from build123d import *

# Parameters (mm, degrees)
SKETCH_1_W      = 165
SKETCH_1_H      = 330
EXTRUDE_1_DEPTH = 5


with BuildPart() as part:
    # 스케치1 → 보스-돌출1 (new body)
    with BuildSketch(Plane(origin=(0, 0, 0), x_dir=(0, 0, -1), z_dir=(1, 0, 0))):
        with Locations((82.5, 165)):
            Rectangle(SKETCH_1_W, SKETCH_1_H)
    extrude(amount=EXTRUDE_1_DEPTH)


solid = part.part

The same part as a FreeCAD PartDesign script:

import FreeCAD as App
import Part
import Sketcher

V = App.Vector
Q = App.Units.Quantity

doc = App.newDocument("Part")
params = doc.addObject("Spreadsheet::Sheet", "Params")
for row, (alias, value) in enumerate([
    ("sketch1_width", "330 mm"),
    ("sketch1_height", "165 mm"),
    ("pad1_length", "5 mm"),
], start=1):
    params.set(f"A{row}", alias)
    params.set(f"B{row}", "=" + value)
    params.setAlias(f"B{row}", alias)

body = doc.addObject("PartDesign::Body", "Body")

sketch1 = body.newObject("Sketcher::SketchObject", "Sketch")
sketch1.AttachmentSupport = (doc.getObject("YZ_Plane"), [""])
sketch1.MapMode = "FlatFace"
sketch1.addGeometry([
    Part.LineSegment(V(330, 0, 0), V(0, 0, 0)),
    Part.LineSegment(V(0, 0, 0), V(0, -165, 0)),
    Part.LineSegment(V(0, -165, 0), V(330, -165, 0)),
    Part.LineSegment(V(330, -165, 0), V(330, 0, 0)),
], False)
sketch1.addConstraint([
    Sketcher.Constraint("Coincident", 0, 2, 1, 1),
    Sketcher.Constraint("Coincident", 1, 2, 2, 1),
    Sketcher.Constraint("Coincident", 2, 2, 3, 1),
    Sketcher.Constraint("Coincident", 3, 2, 0, 1),
    Sketcher.Constraint("Horizontal", 0),
    Sketcher.Constraint("Vertical", 1),
    Sketcher.Constraint("Horizontal", 2),
    Sketcher.Constraint("Vertical", 3),
    Sketcher.Constraint("Coincident", 0, 2, -1, 1),
    Sketcher.Constraint("DistanceX", 0, 2, 0, 1, Q("330 mm")),
    Sketcher.Constraint("DistanceY", 1, 2, 1, 1, Q("165 mm")),
])
sketch1.setExpression("Constraints[9]", "Params.sketch1_width")
sketch1.setExpression("Constraints[10]", "Params.sketch1_height")
pad1 = body.newObject("PartDesign::Pad", "Pad")
pad1.Profile = sketch1
pad1.setExpression("Length", "Params.pad1_length")

doc.recompute()
